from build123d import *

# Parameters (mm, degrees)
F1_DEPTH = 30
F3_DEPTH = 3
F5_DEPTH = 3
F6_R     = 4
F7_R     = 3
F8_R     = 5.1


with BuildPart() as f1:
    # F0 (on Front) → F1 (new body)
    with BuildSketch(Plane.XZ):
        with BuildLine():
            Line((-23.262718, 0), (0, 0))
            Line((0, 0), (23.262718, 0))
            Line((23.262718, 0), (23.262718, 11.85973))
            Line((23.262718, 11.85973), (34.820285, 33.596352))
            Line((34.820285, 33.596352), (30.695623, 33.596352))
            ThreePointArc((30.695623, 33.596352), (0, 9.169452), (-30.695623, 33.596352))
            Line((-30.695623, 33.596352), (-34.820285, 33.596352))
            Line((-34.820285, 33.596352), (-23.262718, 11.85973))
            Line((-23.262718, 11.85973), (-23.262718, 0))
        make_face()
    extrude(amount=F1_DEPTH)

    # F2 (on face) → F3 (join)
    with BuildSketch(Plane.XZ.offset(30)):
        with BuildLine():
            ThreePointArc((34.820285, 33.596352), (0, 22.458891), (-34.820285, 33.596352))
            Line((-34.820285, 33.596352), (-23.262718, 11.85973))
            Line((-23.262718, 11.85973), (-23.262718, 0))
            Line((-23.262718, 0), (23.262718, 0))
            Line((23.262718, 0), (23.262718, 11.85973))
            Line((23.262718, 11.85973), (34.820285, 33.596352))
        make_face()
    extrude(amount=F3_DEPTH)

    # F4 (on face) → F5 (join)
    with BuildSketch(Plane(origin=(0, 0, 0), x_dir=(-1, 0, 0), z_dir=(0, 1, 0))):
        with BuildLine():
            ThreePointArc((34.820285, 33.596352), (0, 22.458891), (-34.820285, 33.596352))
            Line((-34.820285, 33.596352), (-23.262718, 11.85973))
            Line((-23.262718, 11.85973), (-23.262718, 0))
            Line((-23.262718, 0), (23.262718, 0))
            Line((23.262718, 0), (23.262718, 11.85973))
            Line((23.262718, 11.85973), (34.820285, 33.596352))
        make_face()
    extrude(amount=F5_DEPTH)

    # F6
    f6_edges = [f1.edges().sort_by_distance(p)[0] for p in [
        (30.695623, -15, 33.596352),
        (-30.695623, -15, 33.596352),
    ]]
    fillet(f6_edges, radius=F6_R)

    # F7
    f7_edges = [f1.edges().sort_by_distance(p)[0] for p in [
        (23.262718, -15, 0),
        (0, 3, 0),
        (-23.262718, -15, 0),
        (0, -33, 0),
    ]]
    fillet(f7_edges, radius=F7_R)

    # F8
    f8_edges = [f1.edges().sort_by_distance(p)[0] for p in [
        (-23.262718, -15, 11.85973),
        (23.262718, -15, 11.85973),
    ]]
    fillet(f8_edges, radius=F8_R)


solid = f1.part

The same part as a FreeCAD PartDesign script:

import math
import FreeCAD as App
import Part
import Sketcher

V = App.Vector
Q = App.Units.Quantity


def edges_at(feature, points):
    """Names of the edges that pass closest to the given points."""
    edges = feature.Shape.Edges
    near = lambda p: min(range(len(edges)), key=lambda i: edges[i].distToShape(Part.Vertex(*p))[0])
    return sorted({f"Edge{near(p) + 1}" for p in points})

doc = App.newDocument("Part")
params = doc.addObject("Spreadsheet::Sheet", "Params")
for row, (alias, value) in enumerate([
    ("sketch1_radius", "31.5 mm"),
    ("pad1_length", "30 mm"),
    ("sketch2_radius", "59.999998 mm"),
    ("pad2_length", "3 mm"),
    ("sketch3_radius", "59.999998 mm"),
    ("pad3_length", "3 mm"),
    ("fillet_radius", "4 mm"),
    ("fillet2_radius", "3 mm"),
    ("fillet3_radius", "5.1 mm"),
], start=1):
    params.set(f"A{row}", alias)
    params.set(f"B{row}", "=" + value)
    params.setAlias(f"B{row}", alias)

body = doc.addObject("PartDesign::Body", "Body")

sketch1 = body.newObject("Sketcher::SketchObject", "Sketch")
sketch1.AttachmentSupport = (doc.getObject("XZ_Plane"), [""])
sketch1.MapMode = "FlatFace"
sketch1.addGeometry([
    Part.LineSegment(V(-23.262718, 0, 0), V(23.262718, 0, 0)),
    Part.LineSegment(V(23.262718, 0, 0), V(23.262718, 11.85973, 0)),
    Part.LineSegment(V(23.262718, 11.85973, 0), V(34.820285, 33.596352, 0)),
    Part.LineSegment(V(34.820285, 33.596352, 0), V(30.695623, 33.596352, 0)),
    Part.ArcOfCircle(Part.Circle(V(0, 40.669452, 0), V(0, 0, 1), 31.5), math.radians(-167.024002), math.radians(-12.975998)),
    Part.LineSegment(V(-30.695623, 33.596352, 0), V(-34.820285, 33.596352, 0)),
    Part.LineSegment(V(-34.820285, 33.596352, 0), V(-23.262718, 11.85973, 0)),
    Part.LineSegment(V(-23.262718, 11.85973, 0), V(-23.262718, 0, 0)),
], False)
sketch1.addConstraint([
    Sketcher.Constraint("Coincident", 0, 2, 1, 1),
    Sketcher.Constraint("Coincident", 1, 2, 2, 1),
    Sketcher.Constraint("Coincident", 2, 2, 3, 1),
    Sketcher.Constraint("Coincident", 3, 2, 4, 2),
    Sketcher.Constraint("Coincident", 4, 1, 5, 1),
    Sketcher.Constraint("Coincident", 5, 2, 6, 1),
    Sketcher.Constraint("Coincident", 6, 2, 7, 1),
    Sketcher.Constraint("Coincident", 7, 2, 0, 1),
    Sketcher.Constraint("Horizontal", 0),
    Sketcher.Constraint("Vertical", 1),
    Sketcher.Constraint("Horizontal", 3),
    Sketcher.Constraint("Horizontal", 5),
    Sketcher.Constraint("Vertical", 7),
    Sketcher.Constraint("Symmetric", 0, 2, 7, 2, -1, 1),
    Sketcher.Constraint("Symmetric", 3, 2, 4, 1, -2),
    Sketcher.Constraint("Horizontal", 1, 2, 6, 2),
    Sketcher.Constraint("Equal", 3, 5),
    Sketcher.Constraint("Radius", 4, Q("31.5 mm")),
    Sketcher.Constraint("Angle", 2, Q("62 deg")),
    Sketcher.Constraint("DistanceX", 3, 2, 3, 1, Q("4.124662 mm")),
    Sketcher.Constraint("DistanceY", 1, 1, 1, 2, Q("11.85973 mm")),
    Sketcher.Constraint("DistanceY", 2, 2, 4, 3, Q("7.0731 mm")),
    Sketcher.Constraint("DistanceX", 0, 1, 0, 2, Q("46.525436 mm")),
])
sketch1.setExpression("Constraints[17]", "Params.sketch1_radius")
pad1 = body.newObject("PartDesign::Pad", "Pad")
pad1.Profile = sketch1
pad1.setExpression("Length", "Params.pad1_length")

sketch2 = body.newObject("Sketcher::SketchObject", "Sketch001")
sketch2.AttachmentSupport = (doc.getObject("XZ_Plane"), [""])
sketch2.MapMode = "FlatFace"
sketch2.AttachmentOffset = App.Placement(V(0, 0, 30), App.Rotation())
sketch2.addGeometry([
    Part.ArcOfCircle(Part.Circle(V(0, 82.458889, 0), V(0, 0, 1), 59.999998), math.radians(-125.474326), math.radians(-54.525674)),
    Part.LineSegment(V(-34.820285, 33.596352, 0), V(-23.262718, 11.85973, 0)),
    Part.LineSegment(V(-23.262718, 11.85973, 0), V(-23.262718, 0, 0)),
    Part.LineSegment(V(-23.262718, 0, 0), V(23.262718, 0, 0)),
    Part.LineSegment(V(23.262718, 0, 0), V(23.262718, 11.85973, 0)),
    Part.LineSegment(V(23.262718, 11.85973, 0), V(34.820285, 33.596352, 0)),
], False)
sketch2.addConstraint([
    Sketcher.Constraint("Coincident", 0, 1, 1, 1),
    Sketcher.Constraint("Coincident", 1, 2, 2, 1),
    Sketcher.Constraint("Coincident", 2, 2, 3, 1),
    Sketcher.Constraint("Coincident", 3, 2, 4, 1),
    Sketcher.Constraint("Coincident", 4, 2, 5, 1),
    Sketcher.Constraint("Coincident", 5, 2, 0, 2),
    Sketcher.Constraint("Vertical", 2),
    Sketcher.Constraint("Horizontal", 3),
    Sketcher.Constraint("Vertical", 4),
    Sketcher.Constraint("Symmetric", 2, 2, 3, 2, -1, 1),
    Sketcher.Constraint("Symmetric", 0, 1, 5, 2, -2),
    Sketcher.Constraint("Horizontal", 1, 2, 4, 2),
    Sketcher.Constraint("Radius", 0, Q("59.999998 mm")),
    Sketcher.Constraint("Angle", 1, Q("-62 deg")),
    Sketcher.Constraint("DistanceY", 2, 2, 2, 1, Q("11.85973 mm")),
    Sketcher.Constraint("DistanceX", 3, 1, 3, 2, Q("46.525436 mm")),
    Sketcher.Constraint("DistanceY", -1, 1, 0, 3, Q("82.458889 mm")),
])
sketch2.setExpression("Constraints[12]", "Params.sketch2_radius")
pad2 = body.newObject("PartDesign::Pad", "Pad001")
pad2.Profile = sketch2
pad2.setExpression("Length", "Params.pad2_length")

sketch3 = body.newObject("Sketcher::SketchObject", "Sketch002")
sketch3.AttachmentSupport = (doc.getObject("XZ_Plane"), [""])
sketch3.MapMode = "FlatFace"
sketch3.addGeometry([
    Part.ArcOfCircle(Part.Circle(V(0, 82.458889, 0), V(0, 0, 1), 59.999998), math.radians(-125.474326), math.radians(-54.525674)),
    Part.LineSegment(V(34.820285, 33.596352, 0), V(23.262718, 11.85973, 0)),
    Part.LineSegment(V(23.262718, 11.85973, 0), V(23.262718, 0, 0)),
    Part.LineSegment(V(23.262718, 0, 0), V(-23.262718, 0, 0)),
    Part.LineSegment(V(-23.262718, 0, 0), V(-23.262718, 11.85973, 0)),
    Part.LineSegment(V(-23.262718, 11.85973, 0), V(-34.820285, 33.596352, 0)),
], False)
sketch3.addConstraint([
    Sketcher.Constraint("Coincident", 0, 2, 1, 1),
    Sketcher.Constraint("Coincident", 1, 2, 2, 1),
    Sketcher.Constraint("Coincident", 2, 2, 3, 1),
    Sketcher.Constraint("Coincident", 3, 2, 4, 1),
    Sketcher.Constraint("Coincident", 4, 2, 5, 1),
    Sketcher.Constraint("Coincident", 5, 2, 0, 1),
    Sketcher.Constraint("Vertical", 2),
    Sketcher.Constraint("Horizontal", 3),
    Sketcher.Constraint("Vertical", 4),
    Sketcher.Constraint("Symmetric", 2, 2, 3, 2, -1, 1),
    Sketcher.Constraint("Symmetric", 0, 2, 5, 2, -2),
    Sketcher.Constraint("Horizontal", 1, 2, 4, 2),
    Sketcher.Constraint("Radius", 0, Q("59.999998 mm")),
    Sketcher.Constraint("Angle", 1, Q("-118 deg")),
    Sketcher.Constraint("DistanceY", 2, 2, 2, 1, Q("11.85973 mm")),
    Sketcher.Constraint("DistanceX", 3, 2, 3, 1, Q("46.525436 mm")),
    Sketcher.Constraint("DistanceY", -1, 1, 0, 3, Q("82.458889 mm")),
])
sketch3.setExpression("Constraints[12]", "Params.sketch3_radius")
pad3 = body.newObject("PartDesign::Pad", "Pad002")
pad3.Profile = sketch3
pad3.setExpression("Length", "Params.pad3_length")
pad3.Reversed = True
doc.recompute()

fillet = body.newObject("PartDesign::Fillet", "Fillet")
fillet.Base = (pad3, edges_at(pad3, [(30.696, -15, 33.596), (-30.696, -15, 33.596)]))
fillet.setExpression("Radius", "Params.fillet_radius")
doc.recompute()

fillet2 = body.newObject("PartDesign::Fillet", "Fillet001")
fillet2.Base = (fillet, edges_at(fillet, [
    (23.263, -15, 0),
    (0, 3, 0),
    (-23.263, -15, 0),
    (0, -33, 0),
]))
fillet2.setExpression("Radius", "Params.fillet2_radius")
doc.recompute()

fillet3 = body.newObject("PartDesign::Fillet", "Fillet002")
fillet3.Base = (fillet2, edges_at(fillet2, [(-23.263, -15, 11.86), (23.263, -15, 11.86)]))
fillet3.setExpression("Radius", "Params.fillet3_radius")

doc.recompute()
